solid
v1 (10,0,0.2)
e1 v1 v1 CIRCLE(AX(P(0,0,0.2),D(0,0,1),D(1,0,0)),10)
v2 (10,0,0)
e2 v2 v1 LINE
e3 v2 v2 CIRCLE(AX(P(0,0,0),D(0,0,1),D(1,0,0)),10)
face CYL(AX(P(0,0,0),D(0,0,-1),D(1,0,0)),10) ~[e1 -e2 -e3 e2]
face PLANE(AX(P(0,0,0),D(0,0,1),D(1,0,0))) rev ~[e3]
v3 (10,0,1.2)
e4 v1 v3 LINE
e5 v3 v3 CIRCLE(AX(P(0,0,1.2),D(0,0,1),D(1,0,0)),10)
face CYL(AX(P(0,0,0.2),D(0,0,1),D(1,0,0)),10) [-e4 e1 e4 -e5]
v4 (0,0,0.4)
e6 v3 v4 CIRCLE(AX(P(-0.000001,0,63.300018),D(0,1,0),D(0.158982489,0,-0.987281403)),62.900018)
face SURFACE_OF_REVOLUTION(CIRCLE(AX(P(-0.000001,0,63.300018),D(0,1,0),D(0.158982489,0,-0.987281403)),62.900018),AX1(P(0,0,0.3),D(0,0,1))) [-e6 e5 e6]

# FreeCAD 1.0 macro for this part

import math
import FreeCAD as App
import Part
import Sketcher
Q = App.Units.Quantity

doc = App.newDocument("Part")
body = doc.addObject("PartDesign::Body", "Body")

sketch1 = body.newObject("Sketcher::SketchObject", "Sketch")
sketch1.AttachmentSupport = (doc.getObject("XY_Plane"), [""])
sketch1.MapMode = "FlatFace"
sketch1.addGeometry(Part.Circle(App.Vector(0, 0, 0), App.Vector(0, 0, 1), 10), False)
sketch1.addConstraint(Sketcher.Constraint("Coincident", 0, 3, -1, 1))
sketch1.addConstraint(Sketcher.Constraint("Diameter", 0, Q("20 mm")))
pad1 = body.newObject("PartDesign::Pad", "Pad")
pad1.Profile = sketch1
pad1.Length = 0.2

sketch2 = body.newObject("Sketcher::SketchObject", "Sketch001")
sketch2.AttachmentSupport = (doc.getObject("XZ_Plane"), [""])
sketch2.MapMode = "FlatFace"
sketch2.addGeometry(Part.LineSegment(App.Vector(0, 0.4, 0), App.Vector(0, 0.2, 0)), False)
sketch2.addGeometry(Part.LineSegment(App.Vector(0, 0.2, 0), App.Vector(10, 0.2, 0)), False)
sketch2.addGeometry(Part.LineSegment(App.Vector(10, 0.2, 0), App.Vector(10, 1.2, 0)), False)
sketch2.addGeometry(Part.ArcOfCircle(Part.Circle(App.Vector(0, 63.3, 0), App.Vector(0, 0, 1), 62.9), math.radians(-90), math.radians(-80.85)), False)
sketch2.addConstraint(Sketcher.Constraint("Coincident", 0, 2, 1, 1))
sketch2.addConstraint(Sketcher.Constraint("Coincident", 1, 2, 2, 1))
sketch2.addConstraint(Sketcher.Constraint("Coincident", 2, 2, 3, 2))
sketch2.addConstraint(Sketcher.Constraint("Coincident", 3, 1, 0, 1))
sketch2.addConstraint(Sketcher.Constraint("Vertical", 0))
sketch2.addConstraint(Sketcher.Constraint("Horizontal", 1))
sketch2.addConstraint(Sketcher.Constraint("Vertical", 2))
sketch2.addConstraint(Sketcher.Constraint("PointOnObject", 3, 3, -2))
sketch2.addConstraint(Sketcher.Constraint("PointOnObject", 0, 2, -2))
sketch2.addConstraint(Sketcher.Constraint("DistanceX", 1, 1, 1, 2, Q("10 mm")))
sketch2.addConstraint(Sketcher.Constraint("DistanceY", 2, 1, 2, 2, Q("1 mm")))
sketch2.addConstraint(Sketcher.Constraint("DistanceY", 0, 2, 0, 1, Q("0.2 mm")))
sketch2.addConstraint(Sketcher.Constraint("DistanceY", -1, 1, 0, 2, Q("0.2 mm")))
revolution = body.newObject("PartDesign::Revolution", "Revolution")
revolution.Profile = sketch2
revolution.ReferenceAxis = (sketch2, ["V_Axis"])
revolution.Angle = 360

doc.recompute()
